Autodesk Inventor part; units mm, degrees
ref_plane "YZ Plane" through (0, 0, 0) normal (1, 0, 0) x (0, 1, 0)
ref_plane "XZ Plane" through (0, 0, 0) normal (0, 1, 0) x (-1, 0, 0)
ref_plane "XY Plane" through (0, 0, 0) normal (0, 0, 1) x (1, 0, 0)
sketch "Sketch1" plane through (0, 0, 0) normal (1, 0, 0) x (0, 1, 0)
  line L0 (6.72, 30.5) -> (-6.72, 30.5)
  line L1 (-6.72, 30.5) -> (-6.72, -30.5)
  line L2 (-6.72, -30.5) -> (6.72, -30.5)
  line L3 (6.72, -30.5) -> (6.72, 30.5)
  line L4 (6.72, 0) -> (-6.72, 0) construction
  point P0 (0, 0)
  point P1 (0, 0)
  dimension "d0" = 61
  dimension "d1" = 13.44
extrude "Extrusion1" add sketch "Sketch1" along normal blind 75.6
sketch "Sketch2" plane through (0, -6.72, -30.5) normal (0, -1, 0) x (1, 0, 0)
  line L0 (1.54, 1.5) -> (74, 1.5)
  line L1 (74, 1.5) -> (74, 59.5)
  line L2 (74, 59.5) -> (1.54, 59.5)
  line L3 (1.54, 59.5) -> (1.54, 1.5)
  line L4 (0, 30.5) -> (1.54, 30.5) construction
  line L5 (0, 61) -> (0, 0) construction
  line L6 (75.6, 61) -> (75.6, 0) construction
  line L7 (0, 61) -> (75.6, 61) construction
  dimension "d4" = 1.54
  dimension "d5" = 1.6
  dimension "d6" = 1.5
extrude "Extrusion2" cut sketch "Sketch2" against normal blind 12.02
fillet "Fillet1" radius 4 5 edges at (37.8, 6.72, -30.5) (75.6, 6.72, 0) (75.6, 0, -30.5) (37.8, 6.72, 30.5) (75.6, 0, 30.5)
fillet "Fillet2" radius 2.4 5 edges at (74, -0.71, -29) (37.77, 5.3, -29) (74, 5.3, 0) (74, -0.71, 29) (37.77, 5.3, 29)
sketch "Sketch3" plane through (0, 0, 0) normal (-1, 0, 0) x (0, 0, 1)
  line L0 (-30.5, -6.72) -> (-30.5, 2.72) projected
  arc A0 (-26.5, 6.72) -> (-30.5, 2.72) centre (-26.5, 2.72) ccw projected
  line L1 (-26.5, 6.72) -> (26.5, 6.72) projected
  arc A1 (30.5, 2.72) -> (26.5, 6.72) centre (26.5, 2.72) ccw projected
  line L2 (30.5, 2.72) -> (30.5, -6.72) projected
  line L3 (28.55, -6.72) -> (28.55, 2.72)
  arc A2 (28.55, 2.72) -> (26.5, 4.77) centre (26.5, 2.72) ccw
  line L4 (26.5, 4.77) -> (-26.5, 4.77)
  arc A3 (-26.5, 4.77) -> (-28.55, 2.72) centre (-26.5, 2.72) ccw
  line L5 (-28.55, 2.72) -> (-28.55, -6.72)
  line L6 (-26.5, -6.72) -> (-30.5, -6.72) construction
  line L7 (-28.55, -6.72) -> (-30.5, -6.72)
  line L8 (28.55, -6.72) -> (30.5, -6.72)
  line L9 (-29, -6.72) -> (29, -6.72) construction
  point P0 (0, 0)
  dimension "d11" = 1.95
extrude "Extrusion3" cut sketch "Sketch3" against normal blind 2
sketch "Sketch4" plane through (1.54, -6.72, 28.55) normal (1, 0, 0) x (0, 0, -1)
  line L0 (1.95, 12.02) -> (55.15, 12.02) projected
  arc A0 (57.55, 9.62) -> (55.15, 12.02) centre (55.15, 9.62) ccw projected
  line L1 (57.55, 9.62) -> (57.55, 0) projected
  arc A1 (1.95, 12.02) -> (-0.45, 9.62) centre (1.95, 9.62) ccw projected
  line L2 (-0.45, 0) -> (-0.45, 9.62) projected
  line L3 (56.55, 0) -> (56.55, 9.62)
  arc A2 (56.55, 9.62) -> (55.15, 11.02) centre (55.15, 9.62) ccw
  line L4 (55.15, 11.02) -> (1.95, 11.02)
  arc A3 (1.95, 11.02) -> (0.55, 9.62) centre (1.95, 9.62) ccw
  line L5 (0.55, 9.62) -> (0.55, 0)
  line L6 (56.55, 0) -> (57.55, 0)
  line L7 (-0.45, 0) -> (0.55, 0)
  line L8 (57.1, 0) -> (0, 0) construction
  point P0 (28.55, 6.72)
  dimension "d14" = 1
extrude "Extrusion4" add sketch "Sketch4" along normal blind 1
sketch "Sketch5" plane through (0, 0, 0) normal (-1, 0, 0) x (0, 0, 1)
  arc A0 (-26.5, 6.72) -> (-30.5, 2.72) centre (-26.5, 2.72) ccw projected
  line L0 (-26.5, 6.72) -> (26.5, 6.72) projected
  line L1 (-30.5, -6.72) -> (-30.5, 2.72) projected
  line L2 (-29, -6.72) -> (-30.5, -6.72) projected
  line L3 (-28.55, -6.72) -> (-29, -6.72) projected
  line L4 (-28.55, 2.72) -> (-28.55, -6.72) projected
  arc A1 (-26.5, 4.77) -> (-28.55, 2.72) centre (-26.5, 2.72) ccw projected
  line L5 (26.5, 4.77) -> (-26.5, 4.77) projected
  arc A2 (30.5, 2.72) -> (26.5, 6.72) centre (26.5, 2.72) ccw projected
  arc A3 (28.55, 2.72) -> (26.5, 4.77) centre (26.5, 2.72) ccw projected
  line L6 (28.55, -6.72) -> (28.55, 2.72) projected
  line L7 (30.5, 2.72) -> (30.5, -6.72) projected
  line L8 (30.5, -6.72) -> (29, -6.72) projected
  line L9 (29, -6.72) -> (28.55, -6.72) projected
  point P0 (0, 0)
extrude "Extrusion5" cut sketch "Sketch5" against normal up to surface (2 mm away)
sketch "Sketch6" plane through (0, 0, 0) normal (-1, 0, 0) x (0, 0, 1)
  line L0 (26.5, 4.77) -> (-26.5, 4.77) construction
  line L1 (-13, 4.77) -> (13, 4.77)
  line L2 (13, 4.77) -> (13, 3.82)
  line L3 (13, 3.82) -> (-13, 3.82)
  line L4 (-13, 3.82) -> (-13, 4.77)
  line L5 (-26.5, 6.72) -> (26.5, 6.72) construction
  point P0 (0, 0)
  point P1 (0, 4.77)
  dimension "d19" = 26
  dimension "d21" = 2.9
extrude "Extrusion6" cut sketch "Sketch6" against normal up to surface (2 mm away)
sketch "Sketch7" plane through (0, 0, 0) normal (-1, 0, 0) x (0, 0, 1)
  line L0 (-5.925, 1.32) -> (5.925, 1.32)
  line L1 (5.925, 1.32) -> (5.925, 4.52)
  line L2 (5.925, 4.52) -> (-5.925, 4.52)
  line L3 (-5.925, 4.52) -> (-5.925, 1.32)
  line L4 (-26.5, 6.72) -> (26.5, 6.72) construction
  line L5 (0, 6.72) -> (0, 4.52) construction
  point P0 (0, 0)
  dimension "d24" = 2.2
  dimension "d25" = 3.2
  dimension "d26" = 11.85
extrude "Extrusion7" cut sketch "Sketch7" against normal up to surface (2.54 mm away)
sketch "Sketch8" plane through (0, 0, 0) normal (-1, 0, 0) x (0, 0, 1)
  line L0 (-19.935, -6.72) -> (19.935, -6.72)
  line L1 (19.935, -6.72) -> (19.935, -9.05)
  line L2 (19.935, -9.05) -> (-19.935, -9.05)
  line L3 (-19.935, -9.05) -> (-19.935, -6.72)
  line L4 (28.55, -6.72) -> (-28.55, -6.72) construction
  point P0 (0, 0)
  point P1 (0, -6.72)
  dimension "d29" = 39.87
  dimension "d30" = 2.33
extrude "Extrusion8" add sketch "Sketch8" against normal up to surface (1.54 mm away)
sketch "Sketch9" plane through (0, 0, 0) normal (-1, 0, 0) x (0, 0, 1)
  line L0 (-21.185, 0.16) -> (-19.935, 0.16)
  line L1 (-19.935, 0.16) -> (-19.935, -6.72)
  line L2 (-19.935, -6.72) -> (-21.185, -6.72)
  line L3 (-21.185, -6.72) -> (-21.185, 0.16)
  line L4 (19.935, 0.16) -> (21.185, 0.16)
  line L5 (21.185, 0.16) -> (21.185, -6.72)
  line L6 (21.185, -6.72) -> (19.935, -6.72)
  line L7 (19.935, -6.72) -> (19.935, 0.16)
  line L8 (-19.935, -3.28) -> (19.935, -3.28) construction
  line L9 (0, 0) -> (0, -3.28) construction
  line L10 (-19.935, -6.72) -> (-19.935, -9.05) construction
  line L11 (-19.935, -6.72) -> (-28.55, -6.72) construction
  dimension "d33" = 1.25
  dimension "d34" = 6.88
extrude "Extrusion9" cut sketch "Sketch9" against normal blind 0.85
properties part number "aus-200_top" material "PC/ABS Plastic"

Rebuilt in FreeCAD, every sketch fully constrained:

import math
import FreeCAD as App
import Part
import Sketcher


def edges_at(feature, points):
    """Names of the edges that pass closest to the given points."""
    edges = feature.Shape.Edges
    near = lambda p: min(range(len(edges)), key=lambda i: edges[i].distToShape(Part.Vertex(*p))[0])
    return sorted({f"Edge{near(p) + 1}" for p in points})

doc = App.newDocument("Part")
body = doc.addObject("PartDesign::Body", "Body")
body.AllowCompound = True

sketch1 = doc.addObject("Sketcher::SketchObject", "Sketch")
body.addObject(sketch1)
sketch1.AttachmentSupport = (doc.YZ_Plane, [""])
sketch1.MapMode = "FlatFace"
sketch1.addGeometry(Part.LineSegment(App.Vector(7, -30, 0), App.Vector(7, 30, 0)), False)
sketch1.addGeometry(Part.LineSegment(App.Vector(7, 30, 0), App.Vector(-7, 30, 0)), False)
sketch1.addGeometry(Part.LineSegment(App.Vector(-7, 30, 0), App.Vector(-7, -30, 0)), False)
sketch1.addGeometry(Part.LineSegment(App.Vector(-7, -30, 0), App.Vector(7, -30, 0)), False)
sketch1.addConstraint(Sketcher.Constraint("Coincident", 0, 2, 1, 1))
sketch1.addConstraint(Sketcher.Constraint("Coincident", 1, 2, 2, 1))
sketch1.addConstraint(Sketcher.Constraint("Coincident", 2, 2, 3, 1))
sketch1.addConstraint(Sketcher.Constraint("Coincident", 3, 2, 0, 1))
sketch1.addConstraint(Sketcher.Constraint("Vertical", 0))
sketch1.addConstraint(Sketcher.Constraint("Horizontal", 1))
sketch1.addConstraint(Sketcher.Constraint("Vertical", 2))
sketch1.addConstraint(Sketcher.Constraint("Horizontal", 3))
sketch1.addConstraint(Sketcher.Constraint("Symmetric", 0, 2, 2, 2, -1, 1))
sketch1.addConstraint(Sketcher.Constraint("DistanceY", 0, 1, 0, 2, 61.0))
sketch1.addConstraint(Sketcher.Constraint("DistanceX", 1, 2, 1, 1, 13.44))
pad1 = doc.addObject("PartDesign::Pad", "Pad")
body.addObject(pad1)
pad1.Profile = sketch1
pad1.Length = 75.6

sketch2 = doc.addObject("Sketcher::SketchObject", "Sketch001")
body.addObject(sketch2)
sketch2.AttachmentSupport = (doc.XZ_Plane, [""])
sketch2.MapMode = "FlatFace"
sketch2.AttachmentOffset = App.Placement(App.Vector(0, 0, 6.72), App.Rotation())
sketch2.addGeometry(Part.LineSegment(App.Vector(2, 29, 0), App.Vector(2, -29, 0)), False)
sketch2.addGeometry(Part.LineSegment(App.Vector(2, -29, 0), App.Vector(74, -29, 0)), False)
sketch2.addGeometry(Part.LineSegment(App.Vector(74, -29, 0), App.Vector(74, 29, 0)), False)
sketch2.addGeometry(Part.LineSegment(App.Vector(74, 29, 0), App.Vector(2, 29, 0)), False)
sketch2.addConstraint(Sketcher.Constraint("Coincident", 0, 2, 1, 1))
sketch2.addConstraint(Sketcher.Constraint("Coincident", 1, 2, 2, 1))
sketch2.addConstraint(Sketcher.Constraint("Coincident", 2, 2, 3, 1))
sketch2.addConstraint(Sketcher.Constraint("Coincident", 3, 2, 0, 1))
sketch2.addConstraint(Sketcher.Constraint("Vertical", 0))
sketch2.addConstraint(Sketcher.Constraint("Horizontal", 1))
sketch2.addConstraint(Sketcher.Constraint("Vertical", 2))
sketch2.addConstraint(Sketcher.Constraint("Horizontal", 3))
sketch2.addConstraint(Sketcher.Constraint("DistanceY", 0, 2, 0, 1, 58.0))
sketch2.addConstraint(Sketcher.Constraint("DistanceX", -1, 1, 0, 2, 1.54))
sketch2.addConstraint(Sketcher.Constraint("DistanceY", 0, 2, -1, 1, 29.0))
sketch2.addConstraint(Sketcher.Constraint("DistanceX", -1, 1, 1, 2, 74.0))
pocket1 = doc.addObject("PartDesign::Pocket", "Pocket")
body.addObject(pocket1)
pocket1.Profile = sketch2
pocket1.Length = 12.02
doc.recompute()

fillet = doc.addObject("PartDesign::Fillet", "Fillet")
body.addObject(fillet)
fillet.Base = (pocket1, edges_at(pocket1, [
    (37.8, 6.72, -30.5),
    (75.6, 6.72, 0),
    (75.6, 0, -30.5),
    (37.8, 6.72, 30.5),
    (75.6, 0, 30.5),
]))
fillet.Radius = 4
doc.recompute()

fillet2 = doc.addObject("PartDesign::Fillet", "Fillet001")
body.addObject(fillet2)
fillet2.Base = (fillet, edges_at(fillet, [
    (74, -0.71, -29),
    (37.77, 5.3, -29),
    (74, 5.3, 0),
    (74, -0.71, 29),
    (37.77, 5.3, 29),
]))
fillet2.Radius = 2.4

sketch3 = doc.addObject("Sketcher::SketchObject", "Sketch002")
body.addObject(sketch3)
sketch3.AttachmentSupport = (doc.YZ_Plane, [""])
sketch3.MapMode = "FlatFace"
sketch3.addGeometry(Part.LineSegment(App.Vector(2.7, -30.5, 0), App.Vector(-6.7, -30.5, 0)), False)
sketch3.addGeometry(Part.LineSegment(App.Vector(-6.7, -30.5, 0), App.Vector(-6.7, -28.6, 0)), False)
sketch3.addGeometry(Part.LineSegment(App.Vector(-6.7, -28.6, 0), App.Vector(2.7, -28.6, 0)), False)
sketch3.addGeometry(Part.ArcOfCircle(Part.Circle(App.Vector(2.7, -26.5, 0), App.Vector(0, 0, 1), 2), math.radians(-90), math.radians(0)), False)
sketch3.addGeometry(Part.LineSegment(App.Vector(4.8, -26.5, 0), App.Vector(4.8, 26.5, 0)), False)
sketch3.addGeometry(Part.ArcOfCircle(Part.Circle(App.Vector(2.7, 26.5, 0), App.Vector(0, 0, 1), 2.1), math.radians(0), math.radians(90)), False)
sketch3.addGeometry(Part.LineSegment(App.Vector(2.7, 28.6, 0), App.Vector(-6.7, 28.6, 0)), False)
sketch3.addGeometry(Part.LineSegment(App.Vector(-6.7, 28.6, 0), App.Vector(-6.7, 30.5, 0)), False)
sketch3.addGeometry(Part.LineSegment(App.Vector(-6.7, 30.5, 0), App.Vector(2.7, 30.5, 0)), False)
sketch3.addGeometry(Part.ArcOfCircle(Part.Circle(App.Vector(2.7, 26.5, 0), App.Vector(0, 0, 1), 4), math.radians(0), math.radians(90)), False)
sketch3.addGeometry(Part.LineSegment(App.Vector(6.7, 26.5, 0), App.Vector(6.7, -26.5, 0)), False)
sketch3.addGeometry(Part.ArcOfCircle(Part.Circle(App.Vector(2.7, -26.5, 0), App.Vector(0, 0, 1), 4), math.radians(-90), math.radians(0)), False)
sketch3.addConstraint(Sketcher.Constraint("Coincident", 0, 2, 1, 1))
sketch3.addConstraint(Sketcher.Constraint("Coincident", 1, 2, 2, 1))
sketch3.addConstraint(Sketcher.Constraint("Tangent", 2, 2, 3, 1))
sketch3.addConstraint(Sketcher.Constraint("Tangent", 3, 2, 4, 1))
sketch3.addConstraint(Sketcher.Constraint("Tangent", 4, 2, 5, 1))
sketch3.addConstraint(Sketcher.Constraint("Tangent", 5, 2, 6, 1))
sketch3.addConstraint(Sketcher.Constraint("Coincident", 6, 2, 7, 1))
sketch3.addConstraint(Sketcher.Constraint("Coincident", 7, 2, 8, 1))
sketch3.addConstraint(Sketcher.Constraint("Tangent", 8, 2, 9, 2))
sketch3.addConstraint(Sketcher.Constraint("Tangent", 9, 1, 10, 1))
sketch3.addConstraint(Sketcher.Constraint("Tangent", 10, 2, 11, 2))
sketch3.addConstraint(Sketcher.Constraint("Tangent", 11, 1, 0, 1))
sketch3.addConstraint(Sketcher.Constraint("Horizontal", 0))
sketch3.addConstraint(Sketcher.Constraint("Vertical", 1))
sketch3.addConstraint(Sketcher.Constraint("Horizontal", 2))
sketch3.addConstraint(Sketcher.Constraint("Vertical", 4))
sketch3.addConstraint(Sketcher.Constraint("Horizontal", 6))
sketch3.addConstraint(Sketcher.Constraint("Vertical", 7))
sketch3.addConstraint(Sketcher.Constraint("Horizontal", 8))
sketch3.addConstraint(Sketcher.Constraint("Vertical", 10))
sketch3.addConstraint(Sketcher.Constraint("Coincident", 9, 3, 5, 3))
sketch3.addConstraint(Sketcher.Constraint("Coincident", 11, 3, 3, 3))
sketch3.addConstraint(Sketcher.Constraint("Equal", 3, 5))
sketch3.addConstraint(Sketcher.Constraint("Symmetric", 1, 2, 6, 2, -1))
sketch3.addConstraint(Sketcher.Constraint("Radius", 9, 4.0))
sketch3.addConstraint(Sketcher.Constraint("DistanceY", 1, 1, 1, 2, 1.95))
sketch3.addConstraint(Sketcher.Constraint("DistanceY", 4, 1, 4, 2, 53.0))
sketch3.addConstraint(Sketcher.Constraint("DistanceX", 0, 2, 0, 1, 9.44))
sketch3.addConstraint(Sketcher.Constraint("DistanceX", -1, 1, 3, 3, 2.72))
pocket2 = doc.addObject("PartDesign::Pocket", "Pocket001")
body.addObject(pocket2)
pocket2.Profile = sketch3
pocket2.Length = 2
pocket2.Reversed = True

sketch4 = doc.addObject("Sketcher::SketchObject", "Sketch003")
body.addObject(sketch4)
sketch4.AttachmentSupport = (doc.YZ_Plane, [""])
sketch4.MapMode = "FlatFace"
sketch4.AttachmentOffset = App.Placement(App.Vector(0, 0, 1.54), App.Rotation())
sketch4.addGeometry(Part.LineSegment(App.Vector(5.3, -26.6, 0), App.Vector(5.3, 26.6, 0)), False)
sketch4.addGeometry(Part.ArcOfCircle(Part.Circle(App.Vector(2.9, 26.6, 0), App.Vector(0, 0, 1), 2.4), math.radians(0), math.radians(90)), False)
sketch4.addGeometry(Part.LineSegment(App.Vector(2.9, 29, 0), App.Vector(-6.7, 29, 0)), False)
sketch4.addGeometry(Part.LineSegment(App.Vector(-6.7, 29, 0), App.Vector(-6.7, 28, 0)), False)
sketch4.addGeometry(Part.LineSegment(App.Vector(-6.7, 28, 0), App.Vector(2.9, 28, 0)), False)
sketch4.addGeometry(Part.ArcOfCircle(Part.Circle(App.Vector(2.9, 26.6, 0), App.Vector(0, 0, 1), 1.4), math.radians(0), math.radians(90)), False)
sketch4.addGeometry(Part.LineSegment(App.Vector(4.3, 26.6, 0), App.Vector(4.3, -26.6, 0)), False)
sketch4.addGeometry(Part.ArcOfCircle(Part.Circle(App.Vector(2.9, -26.6, 0), App.Vector(0, 0, 1), 1.4), math.radians(-90), math.radians(0)), False)
sketch4.addGeometry(Part.LineSegment(App.Vector(2.9, -28, 0), App.Vector(-6.7, -28, 0)), False)
sketch4.addGeometry(Part.LineSegment(App.Vector(-6.7, -28, 0), App.Vector(-6.7, -29, 0)), False)
sketch4.addGeometry(Part.LineSegment(App.Vector(-6.7, -29, 0), App.Vector(2.9, -29, 0)), False)
sketch4.addGeometry(Part.ArcOfCircle(Part.Circle(App.Vector(2.9, -26.6, 0), App.Vector(0, 0, 1), 2.4), math.radians(-90), math.radians(0)), False)
sketch4.addConstraint(Sketcher.Constraint("Tangent", 0, 2, 1, 1))
sketch4.addConstraint(Sketcher.Constraint("Tangent", 1, 2, 2, 1))
sketch4.addConstraint(Sketcher.Constraint("Coincident", 2, 2, 3, 1))
sketch4.addConstraint(Sketcher.Constraint("Coincident", 3, 2, 4, 1))
sketch4.addConstraint(Sketcher.Constraint("Tangent", 4, 2, 5, 2))
sketch4.addConstraint(Sketcher.Constraint("Tangent", 5, 1, 6, 1))
sketch4.addConstraint(Sketcher.Constraint("Tangent", 6, 2, 7, 2))
sketch4.addConstraint(Sketcher.Constraint("Tangent", 7, 1, 8, 1))
sketch4.addConstraint(Sketcher.Constraint("Coincident", 8, 2, 9, 1))
sketch4.addConstraint(Sketcher.Constraint("Coincident", 9, 2, 10, 1))
sketch4.addConstraint(Sketcher.Constraint("Tangent", 10, 2, 11, 1))
sketch4.addConstraint(Sketcher.Constraint("Tangent", 11, 2, 0, 1))
sketch4.addConstraint(Sketcher.Constraint("Vertical", 0))
sketch4.addConstraint(Sketcher.Constraint("Horizontal", 2))
sketch4.addConstraint(Sketcher.Constraint("Vertical", 3))
sketch4.addConstraint(Sketcher.Constraint("Horizontal", 4))
sketch4.addConstraint(Sketcher.Constraint("Vertical", 6))
sketch4.addConstraint(Sketcher.Constraint("Horizontal", 8))
sketch4.addConstraint(Sketcher.Constraint("Vertical", 9))
sketch4.addConstraint(Sketcher.Constraint("Horizontal", 10))
sketch4.addConstraint(Sketcher.Constraint("Coincident", 5, 3, 1, 3))
sketch4.addConstraint(Sketcher.Constraint("Coincident", 11, 3, 7, 3))
sketch4.addConstraint(Sketcher.Constraint("Equal", 5, 7))
sketch4.addConstraint(Sketcher.Constraint("Symmetric", 3, 2, 8, 2, -1))
sketch4.addConstraint(Sketcher.Constraint("DistanceY", 3, 2, 3, 1, 1.0))
sketch4.addConstraint(Sketcher.Constraint("Radius", 1, 2.4))
sketch4.addConstraint(Sketcher.Constraint("DistanceY", 0, 1, 0, 2, 53.2))
sketch4.addConstraint(Sketcher.Constraint("DistanceX", 2, 2, 2, 1, 9.62))
sketch4.addConstraint(Sketcher.Constraint("DistanceX", -1, 1, 1, 3, 2.9))
pad2 = doc.addObject("PartDesign::Pad", "Pad001")
body.addObject(pad2)
pad2.Profile = sketch4
pad2.Length = 1

sketch5 = doc.addObject("Sketcher::SketchObject", "Sketch004")
body.addObject(sketch5)
sketch5.AttachmentSupport = (doc.YZ_Plane, [""])
sketch5.MapMode = "FlatFace"
sketch5.addGeometry(Part.LineSegment(App.Vector(6.7, 26.5, 0), App.Vector(6.7, -26.5, 0)), False)
sketch5.addGeometry(Part.ArcOfCircle(Part.Circle(App.Vector(2.7, -26.5, 0), App.Vector(0, 0, 1), 4), math.radians(-90), math.radians(0)), False)
sketch5.addGeometry(Part.LineSegment(App.Vector(2.7, -30.5, 0), App.Vector(-6.7, -30.5, 0)), False)
sketch5.addGeometry(Part.LineSegment(App.Vector(-6.7, -30.5, 0), App.Vector(-6.7, -28.6, 0)), False)
sketch5.addGeometry(Part.LineSegment(App.Vector(-6.7, -28.6, 0), App.Vector(2.7, -28.6, 0)), False)
sketch5.addGeometry(Part.ArcOfCircle(Part.Circle(App.Vector(2.7, -26.5, 0), App.Vector(0, 0, 1), 2), math.radians(-90), math.radians(0)), False)
sketch5.addGeometry(Part.LineSegment(App.Vector(4.8, -26.5, 0), App.Vector(4.8, 26.5, 0)), False)
sketch5.addGeometry(Part.ArcOfCircle(Part.Circle(App.Vector(2.7, 26.5, 0), App.Vector(0, 0, 1), 2.1), math.radians(0), math.radians(90)), False)
sketch5.addGeometry(Part.LineSegment(App.Vector(2.7, 28.6, 0), App.Vector(-6.7, 28.6, 0)), False)
sketch5.addGeometry(Part.LineSegment(App.Vector(-6.7, 28.6, 0), App.Vector(-6.7, 30.5, 0)), False)
sketch5.addGeometry(Part.LineSegment(App.Vector(-6.7, 30.5, 0), App.Vector(2.7, 30.5, 0)), False)
sketch5.addGeometry(Part.ArcOfCircle(Part.Circle(App.Vector(2.7, 26.5, 0), App.Vector(0, 0, 1), 4), math.radians(0), math.radians(90)), False)
sketch5.addConstraint(Sketcher.Constraint("Tangent", 0, 2, 1, 2))
sketch5.addConstraint(Sketcher.Constraint("Tangent", 1, 1, 2, 1))
sketch5.addConstraint(Sketcher.Constraint("Coincident", 2, 2, 3, 1))
sketch5.addConstraint(Sketcher.Constraint("Coincident", 3, 2, 4, 1))
sketch5.addConstraint(Sketcher.Constraint("Tangent", 4, 2, 5, 1))
sketch5.addConstraint(Sketcher.Constraint("Tangent", 5, 2, 6, 1))
sketch5.addConstraint(Sketcher.Constraint("Tangent", 6, 2, 7, 1))
sketch5.addConstraint(Sketcher.Constraint("Tangent", 7, 2, 8, 1))
sketch5.addConstraint(Sketcher.Constraint("Coincident", 8, 2, 9, 1))
sketch5.addConstraint(Sketcher.Constraint("Coincident", 9, 2, 10, 1))
sketch5.addConstraint(Sketcher.Constraint("Tangent", 10, 2, 11, 2))
sketch5.addConstraint(Sketcher.Constraint("Tangent", 11, 1, 0, 1))
sketch5.addConstraint(Sketcher.Constraint("Vertical", 0))
sketch5.addConstraint(Sketcher.Constraint("Horizontal", 2))
sketch5.addConstraint(Sketcher.Constraint("Vertical", 3))
sketch5.addConstraint(Sketcher.Constraint("Horizontal", 4))
sketch5.addConstraint(Sketcher.Constraint("Vertical", 6))
sketch5.addConstraint(Sketcher.Constraint("Horizontal", 8))
sketch5.addConstraint(Sketcher.Constraint("Vertical", 9))
sketch5.addConstraint(Sketcher.Constraint("Horizontal", 10))
sketch5.addConstraint(Sketcher.Constraint("Coincident", 5, 3, 1, 3))
sketch5.addConstraint(Sketcher.Constraint("Coincident", 11, 3, 7, 3))
sketch5.addConstraint(Sketcher.Constraint("Equal", 5, 7))
sketch5.addConstraint(Sketcher.Constraint("Symmetric", 3, 2, 8, 2, -1))
sketch5.addConstraint(Sketcher.Constraint("Radius", 1, 4.0))
sketch5.addConstraint(Sketcher.Constraint("DistanceY", 0, 2, 0, 1, 53.0))
sketch5.addConstraint(Sketcher.Constraint("Radius", 5, 2.05))
sketch5.addConstraint(Sketcher.Constraint("DistanceX", 2, 2, 2, 1, 9.44))
sketch5.addConstraint(Sketcher.Constraint("DistanceX", -1, 1, 1, 3, 2.72))
pocket3 = doc.addObject("PartDesign::Pocket", "Pocket002")
body.addObject(pocket3)
pocket3.Profile = sketch5
pocket3.Length = 2
pocket3.Reversed = True

sketch6 = doc.addObject("Sketcher::SketchObject", "Sketch005")
body.addObject(sketch6)
sketch6.AttachmentSupport = (doc.YZ_Plane, [""])
sketch6.MapMode = "FlatFace"
sketch6.addGeometry(Part.LineSegment(App.Vector(4.8, 13, 0), App.Vector(4.8, -13, 0)), False)
sketch6.addGeometry(Part.LineSegment(App.Vector(4.8, -13, 0), App.Vector(3.8, -13, 0)), False)
sketch6.addGeometry(Part.LineSegment(App.Vector(3.8, -13, 0), App.Vector(3.8, 13, 0)), False)
sketch6.addGeometry(Part.LineSegment(App.Vector(3.8, 13, 0), App.Vector(4.8, 13, 0)), False)
sketch6.addConstraint(Sketcher.Constraint("Coincident", 0, 2, 1, 1))
sketch6.addConstraint(Sketcher.Constraint("Coincident", 1, 2, 2, 1))
sketch6.addConstraint(Sketcher.Constraint("Coincident", 2, 2, 3, 1))
sketch6.addConstraint(Sketcher.Constraint("Coincident", 3, 2, 0, 1))
sketch6.addConstraint(Sketcher.Constraint("Vertical", 0))
sketch6.addConstraint(Sketcher.Constraint("Horizontal", 1))
sketch6.addConstraint(Sketcher.Constraint("Vertical", 2))
sketch6.addConstraint(Sketcher.Constraint("Horizontal", 3))
sketch6.addConstraint(Sketcher.Constraint("DistanceY", 0, 2, 0, 1, 26.0))
sketch6.addConstraint(Sketcher.Constraint("DistanceY", 0, 2, -1, 1, 13.0))
sketch6.addConstraint(Sketcher.Constraint("DistanceX", 1, 2, 1, 1, 0.95))
sketch6.addConstraint(Sketcher.Constraint("DistanceX", -1, 1, 0, 2, 4.77))
pocket4 = doc.addObject("PartDesign::Pocket", "Pocket003")
body.addObject(pocket4)
pocket4.Profile = sketch6
pocket4.Length = 2
pocket4.Reversed = True

sketch7 = doc.addObject("Sketcher::SketchObject", "Sketch006")
body.addObject(sketch7)
sketch7.AttachmentSupport = (doc.YZ_Plane, [""])
sketch7.MapMode = "FlatFace"
sketch7.addGeometry(Part.LineSegment(App.Vector(4.5, -5.9, 0), App.Vector(1.3, -5.9, 0)), False)
sketch7.addGeometry(Part.LineSegment(App.Vector(1.3, -5.9, 0), App.Vector(1.3, 5.9, 0)), False)
sketch7.addGeometry(Part.LineSegment(App.Vector(1.3, 5.9, 0), App.Vector(4.5, 5.9, 0)), False)
sketch7.addGeometry(Part.LineSegment(App.Vector(4.5, 5.9, 0), App.Vector(4.5, -5.9, 0)), False)
sketch7.addConstraint(Sketcher.Constraint("Coincident", 0, 2, 1, 1))
sketch7.addConstraint(Sketcher.Constraint("Coincident", 1, 2, 2, 1))
sketch7.addConstraint(Sketcher.Constraint("Coincident", 2, 2, 3, 1))
sketch7.addConstraint(Sketcher.Constraint("Coincident", 3, 2, 0, 1))
sketch7.addConstraint(Sketcher.Constraint("Horizontal", 0))
sketch7.addConstraint(Sketcher.Constraint("Vertical", 1))
sketch7.addConstraint(Sketcher.Constraint("Horizontal", 2))
sketch7.addConstraint(Sketcher.Constraint("Vertical", 3))
sketch7.addConstraint(Sketcher.Constraint("DistanceX", 0, 2, 0, 1, 3.2))
sketch7.addConstraint(Sketcher.Constraint("DistanceY", 1, 1, 1, 2, 11.85))
sketch7.addConstraint(Sketcher.Constraint("DistanceX", -1, 1, 0, 2, 1.32))
sketch7.addConstraint(Sketcher.Constraint("DistanceY", 0, 2, -1, 1, 5.925))
pocket5 = doc.addObject("PartDesign::Pocket", "Pocket004")
body.addObject(pocket5)
pocket5.Profile = sketch7
pocket5.Length = 2.54
pocket5.Reversed = True

sketch8 = doc.addObject("Sketcher::SketchObject", "Sketch007")
body.addObject(sketch8)
sketch8.AttachmentSupport = (doc.YZ_Plane, [""])
sketch8.MapMode = "FlatFace"
sketch8.addGeometry(Part.LineSegment(App.Vector(-6.7, 19.9, 0), App.Vector(-6.7, -19.9, 0)), False)
sketch8.addGeometry(Part.LineSegment(App.Vector(-6.7, -19.9, 0), App.Vector(-9.1, -19.9, 0)), False)
sketch8.addGeometry(Part.LineSegment(App.Vector(-9.1, -19.9, 0), App.Vector(-9.1, 19.9, 0)), False)
sketch8.addGeometry(Part.LineSegment(App.Vector(-9.1, 19.9, 0), App.Vector(-6.7, 19.9, 0)), False)
sketch8.addConstraint(Sketcher.Constraint("Coincident", 0, 2, 1, 1))
sketch8.addConstraint(Sketcher.Constraint("Coincident", 1, 2, 2, 1))
sketch8.addConstraint(Sketcher.Constraint("Coincident", 2, 2, 3, 1))
sketch8.addConstraint(Sketcher.Constraint("Coincident", 3, 2, 0, 1))
sketch8.addConstraint(Sketcher.Constraint("Vertical", 0))
sketch8.addConstraint(Sketcher.Constraint("Horizontal", 1))
sketch8.addConstraint(Sketcher.Constraint("Vertical", 2))
sketch8.addConstraint(Sketcher.Constraint("Horizontal", 3))
sketch8.addConstraint(Sketcher.Constraint("DistanceX", 1, 2, 1, 1, 2.33))
sketch8.addConstraint(Sketcher.Constraint("DistanceY", 0, 2, 0, 1, 39.87))
sketch8.addConstraint(Sketcher.Constraint("DistanceX", 0, 2, -1, 1, 6.72))
sketch8.addConstraint(Sketcher.Constraint("DistanceY", 0, 2, -1, 1, 19.935))
pad3 = doc.addObject("PartDesign::Pad", "Pad002")
body.addObject(pad3)
pad3.Profile = sketch8
pad3.Length = 1.54

sketch9 = doc.addObject("Sketcher::SketchObject", "Sketch008")
body.addObject(sketch9)
sketch9.AttachmentSupport = (doc.YZ_Plane, [""])
sketch9.MapMode = "FlatFace"
sketch9.addGeometry(Part.LineSegment(App.Vector(0.2, -19.9, 0), App.Vector(0.2, -21.2, 0)), False)
sketch9.addGeometry(Part.LineSegment(App.Vector(0.2, -21.2, 0), App.Vector(-6.7, -21.2, 0)), False)
sketch9.addGeometry(Part.LineSegment(App.Vector(-6.7, -21.2, 0), App.Vector(-6.7, -19.9, 0)), False)
sketch9.addGeometry(Part.LineSegment(App.Vector(-6.7, -19.9, 0), App.Vector(0.2, -19.9, 0)), False)
sketch9.addGeometry(Part.LineSegment(App.Vector(0.2, 21.2, 0), App.Vector(0.2, 19.9, 0)), False)
sketch9.addGeometry(Part.LineSegment(App.Vector(0.2, 19.9, 0), App.Vector(-6.7, 19.9, 0)), False)
sketch9.addGeometry(Part.LineSegment(App.Vector(-6.7, 19.9, 0), App.Vector(-6.7, 21.2, 0)), False)
sketch9.addGeometry(Part.LineSegment(App.Vector(-6.7, 21.2, 0), App.Vector(0.2, 21.2, 0)), False)
sketch9.addConstraint(Sketcher.Constraint("Coincident", 0, 2, 1, 1))
sketch9.addConstraint(Sketcher.Constraint("Coincident", 1, 2, 2, 1))
sketch9.addConstraint(Sketcher.Constraint("Coincident", 2, 2, 3, 1))
sketch9.addConstraint(Sketcher.Constraint("Coincident", 3, 2, 0, 1))
sketch9.addConstraint(Sketcher.Constraint("Coincident", 4, 2, 5, 1))
sketch9.addConstraint(Sketcher.Constraint("Coincident", 5, 2, 6, 1))
sketch9.addConstraint(Sketcher.Constraint("Coincident", 6, 2, 7, 1))
sketch9.addConstraint(Sketcher.Constraint("Coincident", 7, 2, 4, 1))
sketch9.addConstraint(Sketcher.Constraint("Vertical", 0))
sketch9.addConstraint(Sketcher.Constraint("Horizontal", 1))
sketch9.addConstraint(Sketcher.Constraint("Vertical", 2))
sketch9.addConstraint(Sketcher.Constraint("Horizontal", 3))
sketch9.addConstraint(Sketcher.Constraint("Vertical", 4))
sketch9.addConstraint(Sketcher.Constraint("Horizontal", 5))
sketch9.addConstraint(Sketcher.Constraint("Vertical", 6))
sketch9.addConstraint(Sketcher.Constraint("Horizontal", 7))
sketch9.addConstraint(Sketcher.Constraint("Symmetric", 3, 2, 4, 2, -1))
sketch9.addConstraint(Sketcher.Constraint("Symmetric", 1, 2, 6, 2, -1))
sketch9.addConstraint(Sketcher.Constraint("DistanceX", 1, 2, 1, 1, 6.88))
sketch9.addConstraint(Sketcher.Constraint("DistanceY", 0, 2, 0, 1, 1.25))
sketch9.addConstraint(Sketcher.Constraint("DistanceX", -1, 1, 0, 2, 0.16))
sketch9.addConstraint(Sketcher.Constraint("DistanceY", 3, 2, 4, 2, 39.87))
pocket6 = doc.addObject("PartDesign::Pocket", "Pocket005")
body.addObject(pocket6)
pocket6.Profile = sketch9
pocket6.Length = 0.85
pocket6.Reversed = True

doc.recompute()
